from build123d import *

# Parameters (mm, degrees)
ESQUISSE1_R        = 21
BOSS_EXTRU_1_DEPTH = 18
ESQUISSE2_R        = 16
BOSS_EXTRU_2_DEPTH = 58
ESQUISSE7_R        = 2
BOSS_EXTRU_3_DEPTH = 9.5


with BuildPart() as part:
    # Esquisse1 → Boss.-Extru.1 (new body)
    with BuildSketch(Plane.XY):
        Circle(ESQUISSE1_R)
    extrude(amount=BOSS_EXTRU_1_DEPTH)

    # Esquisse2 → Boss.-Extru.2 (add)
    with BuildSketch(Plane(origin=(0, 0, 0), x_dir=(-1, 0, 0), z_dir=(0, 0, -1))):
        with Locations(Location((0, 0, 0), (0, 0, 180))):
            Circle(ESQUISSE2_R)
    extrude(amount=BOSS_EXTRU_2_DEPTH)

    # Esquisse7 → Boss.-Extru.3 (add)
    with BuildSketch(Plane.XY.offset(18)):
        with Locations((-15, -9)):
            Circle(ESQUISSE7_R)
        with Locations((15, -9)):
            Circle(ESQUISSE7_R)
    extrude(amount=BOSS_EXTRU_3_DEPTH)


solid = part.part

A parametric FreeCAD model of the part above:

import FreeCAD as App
import Part
import Sketcher
Q = App.Units.Quantity

doc = App.newDocument("Part")
body = doc.addObject("PartDesign::Body", "Body")

sketch1 = body.newObject("Sketcher::SketchObject", "Sketch")
sketch1.AttachmentSupport = (doc.getObject("XY_Plane"), [""])
sketch1.MapMode = "FlatFace"
sketch1.addGeometry(Part.Circle(App.Vector(0, 0, 0), App.Vector(0, 0, 1), 21), False)
sketch1.addConstraint([
    Sketcher.Constraint("Coincident", 0, 3, -1, 1),
    Sketcher.Constraint("Diameter", 0, Q("42 mm")),
])
pad1 = body.newObject("PartDesign::Pad", "Pad")
pad1.Profile = sketch1
pad1.Length = 18

sketch2 = body.newObject("Sketcher::SketchObject", "Sketch001")
sketch2.AttachmentSupport = (doc.getObject("XY_Plane"), [""])
sketch2.MapMode = "FlatFace"
sketch2.addGeometry(Part.Circle(App.Vector(0, 0, 0), App.Vector(0, 0, 1), 16), False)
sketch2.addConstraint([
    Sketcher.Constraint("Coincident", 0, 3, -1, 1),
    Sketcher.Constraint("Diameter", 0, Q("32 mm")),
])
pad2 = body.newObject("PartDesign::Pad", "Pad001")
pad2.Profile = sketch2
pad2.Length = 58
pad2.Reversed = True

sketch3 = body.newObject("Sketcher::SketchObject", "Sketch002")
sketch3.AttachmentSupport = (doc.getObject("XY_Plane"), [""])
sketch3.MapMode = "FlatFace"
sketch3.AttachmentOffset = App.Placement(App.Vector(0, 0, 18), App.Rotation())
sketch3.addGeometry([
    Part.Circle(App.Vector(-15, -9, 0), App.Vector(0, 0, 1), 2),
    Part.Circle(App.Vector(15, -9, 0), App.Vector(0, 0, 1), 2),
], False)
sketch3.addConstraint([
    Sketcher.Constraint("Equal", 0, 1),
    Sketcher.Constraint("Symmetric", 0, 3, 1, 3, -2),
    Sketcher.Constraint("Diameter", 0, Q("4 mm")),
    Sketcher.Constraint("DistanceX", 0, 3, -1, 1, Q("15 mm")),
    Sketcher.Constraint("DistanceY", 0, 3, -1, 1, Q("9 mm")),
])
pad3 = body.newObject("PartDesign::Pad", "Pad002")
pad3.Profile = sketch3
pad3.Length = 9.5

doc.recompute()
